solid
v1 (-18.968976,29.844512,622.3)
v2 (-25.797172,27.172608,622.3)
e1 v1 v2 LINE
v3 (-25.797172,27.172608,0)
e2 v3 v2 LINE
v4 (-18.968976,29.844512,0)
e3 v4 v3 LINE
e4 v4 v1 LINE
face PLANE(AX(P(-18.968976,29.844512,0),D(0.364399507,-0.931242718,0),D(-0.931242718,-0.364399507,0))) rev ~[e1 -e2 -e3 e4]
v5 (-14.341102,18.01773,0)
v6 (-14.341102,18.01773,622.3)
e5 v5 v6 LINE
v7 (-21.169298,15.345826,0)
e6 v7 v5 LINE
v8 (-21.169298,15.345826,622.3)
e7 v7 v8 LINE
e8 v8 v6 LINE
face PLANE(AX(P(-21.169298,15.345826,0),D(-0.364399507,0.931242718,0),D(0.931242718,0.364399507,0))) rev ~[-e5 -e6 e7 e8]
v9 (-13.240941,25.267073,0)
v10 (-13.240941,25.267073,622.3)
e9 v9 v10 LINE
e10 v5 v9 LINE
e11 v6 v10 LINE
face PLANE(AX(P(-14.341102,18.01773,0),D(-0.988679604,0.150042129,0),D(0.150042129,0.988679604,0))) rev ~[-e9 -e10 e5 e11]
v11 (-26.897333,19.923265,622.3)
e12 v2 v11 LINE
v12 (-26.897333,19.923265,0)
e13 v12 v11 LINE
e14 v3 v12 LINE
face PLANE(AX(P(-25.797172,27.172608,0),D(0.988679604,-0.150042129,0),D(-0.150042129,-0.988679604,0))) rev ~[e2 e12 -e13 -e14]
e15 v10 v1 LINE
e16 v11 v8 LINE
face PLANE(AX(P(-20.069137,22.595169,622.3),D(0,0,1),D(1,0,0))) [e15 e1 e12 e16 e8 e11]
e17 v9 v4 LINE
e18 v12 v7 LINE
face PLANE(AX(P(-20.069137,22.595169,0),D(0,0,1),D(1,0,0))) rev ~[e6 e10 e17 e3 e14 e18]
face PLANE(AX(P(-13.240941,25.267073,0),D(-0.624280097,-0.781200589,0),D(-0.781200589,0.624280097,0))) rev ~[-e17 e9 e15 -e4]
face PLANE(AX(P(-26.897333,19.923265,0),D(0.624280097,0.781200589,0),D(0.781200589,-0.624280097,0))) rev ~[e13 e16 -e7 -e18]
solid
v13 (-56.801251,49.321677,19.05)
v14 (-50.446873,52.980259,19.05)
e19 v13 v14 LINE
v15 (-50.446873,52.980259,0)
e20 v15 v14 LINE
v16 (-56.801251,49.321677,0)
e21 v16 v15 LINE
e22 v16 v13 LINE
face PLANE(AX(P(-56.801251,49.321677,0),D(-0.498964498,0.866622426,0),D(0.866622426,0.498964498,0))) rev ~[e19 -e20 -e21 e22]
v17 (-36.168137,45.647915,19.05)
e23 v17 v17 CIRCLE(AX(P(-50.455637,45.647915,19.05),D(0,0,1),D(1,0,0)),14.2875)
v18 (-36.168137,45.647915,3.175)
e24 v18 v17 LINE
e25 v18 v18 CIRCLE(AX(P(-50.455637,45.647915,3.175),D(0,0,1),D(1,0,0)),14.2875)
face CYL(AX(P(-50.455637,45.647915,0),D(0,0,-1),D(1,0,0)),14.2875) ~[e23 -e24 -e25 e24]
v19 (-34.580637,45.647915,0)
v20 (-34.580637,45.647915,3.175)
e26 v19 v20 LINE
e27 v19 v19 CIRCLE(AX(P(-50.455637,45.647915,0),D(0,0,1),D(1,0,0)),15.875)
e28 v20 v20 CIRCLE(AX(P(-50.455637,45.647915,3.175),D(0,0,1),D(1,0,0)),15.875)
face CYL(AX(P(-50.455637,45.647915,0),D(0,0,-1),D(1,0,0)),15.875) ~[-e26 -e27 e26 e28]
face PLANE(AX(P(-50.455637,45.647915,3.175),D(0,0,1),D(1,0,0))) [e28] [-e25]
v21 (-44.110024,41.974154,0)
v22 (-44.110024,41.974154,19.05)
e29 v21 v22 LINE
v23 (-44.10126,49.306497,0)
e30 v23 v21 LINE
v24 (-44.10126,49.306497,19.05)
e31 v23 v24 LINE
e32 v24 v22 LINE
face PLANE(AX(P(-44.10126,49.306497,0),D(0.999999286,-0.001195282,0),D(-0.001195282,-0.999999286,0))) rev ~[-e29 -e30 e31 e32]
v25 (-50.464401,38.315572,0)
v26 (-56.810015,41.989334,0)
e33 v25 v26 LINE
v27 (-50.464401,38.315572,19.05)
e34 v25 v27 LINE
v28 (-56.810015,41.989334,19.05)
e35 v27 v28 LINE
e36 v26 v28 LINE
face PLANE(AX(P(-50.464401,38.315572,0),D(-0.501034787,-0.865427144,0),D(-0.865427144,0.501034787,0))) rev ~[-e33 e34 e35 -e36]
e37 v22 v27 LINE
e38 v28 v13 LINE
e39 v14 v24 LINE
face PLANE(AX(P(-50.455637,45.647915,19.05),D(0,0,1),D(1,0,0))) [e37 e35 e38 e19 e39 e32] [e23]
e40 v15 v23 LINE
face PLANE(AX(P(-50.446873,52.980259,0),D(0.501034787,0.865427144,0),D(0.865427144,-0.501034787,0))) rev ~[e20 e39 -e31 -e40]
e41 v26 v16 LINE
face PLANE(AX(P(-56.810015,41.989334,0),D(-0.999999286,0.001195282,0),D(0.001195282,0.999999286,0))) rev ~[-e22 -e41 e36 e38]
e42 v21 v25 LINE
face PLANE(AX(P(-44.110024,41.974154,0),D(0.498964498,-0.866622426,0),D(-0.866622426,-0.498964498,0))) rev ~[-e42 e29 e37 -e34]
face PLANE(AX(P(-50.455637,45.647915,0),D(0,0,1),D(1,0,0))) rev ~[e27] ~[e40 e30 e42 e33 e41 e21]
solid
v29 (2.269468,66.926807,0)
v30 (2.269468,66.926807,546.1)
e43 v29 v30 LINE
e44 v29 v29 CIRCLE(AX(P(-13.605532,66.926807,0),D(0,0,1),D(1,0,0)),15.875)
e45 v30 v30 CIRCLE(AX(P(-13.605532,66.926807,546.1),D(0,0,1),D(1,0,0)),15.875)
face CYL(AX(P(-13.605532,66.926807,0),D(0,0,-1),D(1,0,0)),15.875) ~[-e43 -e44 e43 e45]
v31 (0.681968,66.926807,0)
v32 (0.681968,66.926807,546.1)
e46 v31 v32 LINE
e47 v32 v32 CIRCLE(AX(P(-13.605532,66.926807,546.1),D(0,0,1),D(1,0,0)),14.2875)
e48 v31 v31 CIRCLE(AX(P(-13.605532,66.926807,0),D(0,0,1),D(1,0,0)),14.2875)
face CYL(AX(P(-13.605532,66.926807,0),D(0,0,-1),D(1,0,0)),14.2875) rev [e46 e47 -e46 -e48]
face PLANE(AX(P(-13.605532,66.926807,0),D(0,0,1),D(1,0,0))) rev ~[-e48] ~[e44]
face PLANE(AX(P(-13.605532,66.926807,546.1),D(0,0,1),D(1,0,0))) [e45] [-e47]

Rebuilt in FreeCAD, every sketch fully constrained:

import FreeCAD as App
import Part
import Sketcher
from FreeCAD import Vector
Q = App.Units.Quantity


def add_polygon(sketch, points):
    """Adds a closed chain of lines whose ends are joined by coincident constraints."""
    first, n = sketch.GeometryCount, len(points)
    for a, b in zip(points, points[1:] + points[:1]):
        sketch.addGeometry(Part.LineSegment(App.Vector(*a, 0), App.Vector(*b, 0)), False)
    for i in range(n):
        sketch.addConstraint(Sketcher.Constraint("Coincident", first + i, 2, first + (i + 1) % n, 1))

doc = App.newDocument("Part")
body = doc.addObject("PartDesign::Body", "Body")

sketch1 = doc.addObject("Sketcher::SketchObject", "Sketch")
body.addObject(sketch1)
sketch1.AttachmentSupport = (doc.XY_Plane, [""])
sketch1.MapMode = "FlatFace"
sketch1.addGeometry([
    Part.Circle(Vector(-50.455637, 45.647915, 0), Vector(0, 0, 1), 15.875),
    Part.Circle(Vector(-50.455637, 45.647915, 0), Vector(0, 0, 1), 14.2875),
], False)
sketch1.addConstraint([
    Sketcher.Constraint("Coincident", 1, 3, 0, 3),
    Sketcher.Constraint("Diameter", 0, Q("1.25 in")),
    Sketcher.Constraint("Diameter", 1, Q("1.125 in")),
    Sketcher.Constraint("DistanceX", 0, 3, -1, 1, Q("50.455637 mm")),
    Sketcher.Constraint("DistanceY", -1, 1, 0, 3, Q("45.647915 mm")),
])
pad1 = doc.addObject("PartDesign::Pad", "Pad")
body.addObject(pad1)
pad1.Profile = sketch1
pad1.Length = Q("0.125 in")

sketch2 = doc.addObject("Sketcher::SketchObject", "Sketch001")
body.addObject(sketch2)
sketch2.AttachmentSupport = (doc.XY_Plane, [""])
sketch2.MapMode = "FlatFace"
sketch2.addGeometry(Part.Circle(Vector(-50.455637, 45.647915, 0), Vector(0, 0, 1), 14.2875), False)
add_polygon(sketch2, [(-50.464402, 38.315572), (-56.810015, 41.989334), (-56.801251, 49.321677), (-50.446873, 52.980259), (-44.10126, 49.306497), (-44.110024, 41.974154)])
sketch2.addConstraint([
    Sketcher.Constraint("Parallel", 1, 4),
    Sketcher.Constraint("Parallel", 2, 5),
    Sketcher.Constraint("Parallel", 3, 6),
    Sketcher.Constraint("Equal", 1, 2),
    Sketcher.Constraint("Equal", 2, 3),
    Sketcher.Constraint("Equal", 3, 4),
    Sketcher.Constraint("Diameter", 0, Q("1.125 in")),
    Sketcher.Constraint("DistanceX", 6, 2, -1, 1, Q("50.464402 mm")),
    Sketcher.Constraint("Distance", 1, Q("7.332348 mm")),
    Sketcher.Constraint("DistanceX", 2, 2, -1, 1, Q("56.801251 mm")),
    Sketcher.Constraint("DistanceY", -1, 1, 3, 2, Q("52.980259 mm")),
    Sketcher.Constraint("DistanceX", 4, 2, -1, 1, Q("44.10126 mm")),
    Sketcher.Constraint("DistanceY", 1, 2, 0, 3, Q("3.658582 mm")),
    Sketcher.Constraint("DistanceY", 2, 2, 3, 2, Q("3.658582 mm")),
    Sketcher.Constraint("DistanceX", 0, 3, -1, 1, Q("50.455637 mm")),
])
pad2 = doc.addObject("PartDesign::Pad", "Pad001")
body.addObject(pad2)
pad2.Profile = sketch2
pad2.Length = Q("0.75 in")
body2 = doc.addObject("PartDesign::Body", "Body001")

sketch3 = doc.addObject("Sketcher::SketchObject", "Sketch002")
body2.addObject(sketch3)
sketch3.AttachmentSupport = (doc.getObject("XY_Plane001"), [""])
sketch3.MapMode = "FlatFace"
sketch3.addGeometry([
    Part.Circle(Vector(-13.605532, 66.926807, 0), Vector(0, 0, 1), 15.875),
    Part.Circle(Vector(-13.605532, 66.926807, 0), Vector(0, 0, 1), 14.2875),
], False)
sketch3.addConstraint([
    Sketcher.Constraint("Coincident", 1, 3, 0, 3),
    Sketcher.Constraint("Diameter", 0, Q("1.25 in")),
    Sketcher.Constraint("Diameter", 1, Q("1.125 in")),
    Sketcher.Constraint("DistanceX", 0, 3, -1, 1, Q("13.605532 mm")),
    Sketcher.Constraint("DistanceY", -1, 1, 0, 3, Q("66.926807 mm")),
])
pad3 = doc.addObject("PartDesign::Pad", "Pad002")
body2.addObject(pad3)
pad3.Profile = sketch3
pad3.Length = Q("21.5 in")
body3 = doc.addObject("PartDesign::Body", "Body002")

sketch4 = doc.addObject("Sketcher::SketchObject", "Sketch003")
body3.addObject(sketch4)
sketch4.AttachmentSupport = (doc.getObject("XY_Plane002"), [""])
sketch4.MapMode = "FlatFace"
add_polygon(sketch4, [(-21.169298, 15.345826), (-14.341102, 18.01773), (-13.240941, 25.267073), (-18.968976, 29.844512), (-25.797172, 27.172608), (-26.897333, 19.923265)])
sketch4.addConstraint([
    Sketcher.Constraint("Parallel", 0, 3),
    Sketcher.Constraint("Parallel", 1, 4),
    Sketcher.Constraint("Parallel", 2, 5),
    Sketcher.Constraint("Equal", 0, 1),
    Sketcher.Constraint("Equal", 1, 2),
    Sketcher.Constraint("Equal", 2, 3),
    Sketcher.Constraint("DistanceX", 5, 2, -1, 1, Q("21.169298 mm")),
    Sketcher.Constraint("Distance", 0, Q("7.332348 mm")),
    Sketcher.Constraint("DistanceY", -1, 1, 0, 2, Q("18.01773 mm")),
    Sketcher.Constraint("DistanceX", 1, 2, -1, 1, Q("13.240941 mm")),
    Sketcher.Constraint("DistanceY", -1, 1, 3, 2, Q("27.172608 mm")),
    Sketcher.Constraint("DistanceX", 0, 2, 1, 2, Q("1.100161 mm")),
])
pad4 = doc.addObject("PartDesign::Pad", "Pad003")
body3.addObject(pad4)
pad4.Profile = sketch4
pad4.Length = Q("24.5 in")

doc.recompute()
